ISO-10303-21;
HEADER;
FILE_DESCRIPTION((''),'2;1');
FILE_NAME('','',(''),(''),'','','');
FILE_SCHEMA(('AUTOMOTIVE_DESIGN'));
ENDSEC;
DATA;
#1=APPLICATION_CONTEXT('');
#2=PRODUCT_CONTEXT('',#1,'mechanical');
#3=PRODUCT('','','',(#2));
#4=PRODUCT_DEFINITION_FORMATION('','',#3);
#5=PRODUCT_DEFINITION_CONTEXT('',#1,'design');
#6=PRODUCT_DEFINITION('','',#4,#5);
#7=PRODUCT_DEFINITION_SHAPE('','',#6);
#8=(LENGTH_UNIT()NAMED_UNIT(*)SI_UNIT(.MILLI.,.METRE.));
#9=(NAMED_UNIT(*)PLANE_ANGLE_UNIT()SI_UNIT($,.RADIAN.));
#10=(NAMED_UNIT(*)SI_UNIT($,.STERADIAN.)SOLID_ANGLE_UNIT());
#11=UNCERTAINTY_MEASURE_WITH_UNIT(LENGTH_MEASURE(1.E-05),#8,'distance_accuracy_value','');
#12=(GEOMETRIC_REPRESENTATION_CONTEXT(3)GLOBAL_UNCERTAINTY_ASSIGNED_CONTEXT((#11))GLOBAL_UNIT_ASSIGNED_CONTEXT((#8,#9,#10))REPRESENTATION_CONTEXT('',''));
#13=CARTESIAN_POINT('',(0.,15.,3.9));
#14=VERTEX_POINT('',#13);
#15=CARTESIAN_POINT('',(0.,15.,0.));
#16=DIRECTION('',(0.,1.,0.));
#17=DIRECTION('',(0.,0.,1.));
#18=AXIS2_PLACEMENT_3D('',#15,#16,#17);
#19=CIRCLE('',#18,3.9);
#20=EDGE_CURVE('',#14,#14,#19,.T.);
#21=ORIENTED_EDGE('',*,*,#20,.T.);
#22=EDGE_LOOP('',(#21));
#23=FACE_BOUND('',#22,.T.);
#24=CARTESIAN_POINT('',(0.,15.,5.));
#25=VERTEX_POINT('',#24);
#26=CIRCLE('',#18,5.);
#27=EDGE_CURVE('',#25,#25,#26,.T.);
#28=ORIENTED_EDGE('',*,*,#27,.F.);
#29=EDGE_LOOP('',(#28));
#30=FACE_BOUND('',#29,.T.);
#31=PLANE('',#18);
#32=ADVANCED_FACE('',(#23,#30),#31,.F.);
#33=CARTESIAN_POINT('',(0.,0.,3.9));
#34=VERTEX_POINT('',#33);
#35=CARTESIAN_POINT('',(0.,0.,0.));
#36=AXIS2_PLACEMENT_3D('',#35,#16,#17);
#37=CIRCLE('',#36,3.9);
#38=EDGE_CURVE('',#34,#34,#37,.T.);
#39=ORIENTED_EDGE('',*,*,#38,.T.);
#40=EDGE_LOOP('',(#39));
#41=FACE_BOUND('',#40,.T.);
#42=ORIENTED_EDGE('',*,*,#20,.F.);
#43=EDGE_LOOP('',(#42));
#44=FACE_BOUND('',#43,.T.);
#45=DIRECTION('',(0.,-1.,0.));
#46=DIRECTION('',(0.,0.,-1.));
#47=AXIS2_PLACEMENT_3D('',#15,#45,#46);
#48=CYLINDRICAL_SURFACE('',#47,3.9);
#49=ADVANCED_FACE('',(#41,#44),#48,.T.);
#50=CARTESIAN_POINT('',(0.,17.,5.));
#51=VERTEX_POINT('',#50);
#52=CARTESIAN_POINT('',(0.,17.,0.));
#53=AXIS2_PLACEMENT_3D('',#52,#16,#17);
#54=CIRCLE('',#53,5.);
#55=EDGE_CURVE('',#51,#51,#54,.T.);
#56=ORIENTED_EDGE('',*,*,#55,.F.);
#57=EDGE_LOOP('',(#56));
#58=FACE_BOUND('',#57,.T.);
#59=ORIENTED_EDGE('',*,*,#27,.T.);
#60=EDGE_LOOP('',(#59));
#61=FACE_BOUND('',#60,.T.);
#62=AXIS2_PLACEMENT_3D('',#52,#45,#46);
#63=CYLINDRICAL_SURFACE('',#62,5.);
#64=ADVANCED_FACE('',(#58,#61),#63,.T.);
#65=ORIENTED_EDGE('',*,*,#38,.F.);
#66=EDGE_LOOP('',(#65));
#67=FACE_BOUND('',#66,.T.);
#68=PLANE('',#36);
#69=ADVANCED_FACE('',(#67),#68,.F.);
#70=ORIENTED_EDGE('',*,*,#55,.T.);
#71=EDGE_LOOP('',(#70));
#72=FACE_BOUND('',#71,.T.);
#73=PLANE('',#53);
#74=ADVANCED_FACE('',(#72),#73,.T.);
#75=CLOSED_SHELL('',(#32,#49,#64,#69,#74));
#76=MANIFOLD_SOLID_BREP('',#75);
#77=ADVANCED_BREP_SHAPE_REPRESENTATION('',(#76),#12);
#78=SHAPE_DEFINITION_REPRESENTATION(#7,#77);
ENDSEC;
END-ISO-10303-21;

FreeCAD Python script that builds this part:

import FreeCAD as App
import Part
import Sketcher

V = App.Vector

doc = App.newDocument("Part")
body = doc.addObject("PartDesign::Body", "Body")

# Sketch on XZ plane
sketch1 = body.newObject("Sketcher::SketchObject", "Sketch")
sketch1.AttachmentSupport = (doc.getObject("XZ_Plane"), [""])
sketch1.MapMode = "FlatFace"
sketch1.addGeometry(Part.Circle(V(0, 0, 0), V(0, 0, 1), 3.9), False)
sketch1.addConstraint([
    Sketcher.Constraint("Coincident", 0, 3, -1, 1),
    Sketcher.Constraint("Diameter", 0, 7.8),
])
pad1 = body.newObject("PartDesign::Pad", "Pad")
pad1.Profile = sketch1
pad1.Length = 15
pad1.Reversed = True

# Sketch on XZ plane
sketch2 = body.newObject("Sketcher::SketchObject", "Sketch001")
sketch2.AttachmentSupport = (doc.getObject("XZ_Plane"), [""])
sketch2.MapMode = "FlatFace"
sketch2.AttachmentOffset = App.Placement(V(0, 0, -15), App.Rotation())
sketch2.addGeometry(Part.Circle(V(0, 0, 0), V(0, 0, 1), 5), False)
sketch2.addConstraint([
    Sketcher.Constraint("Coincident", 0, 3, -1, 1),
    Sketcher.Constraint("Diameter", 0, 10.0),
])
pad2 = body.newObject("PartDesign::Pad", "Pad001")
pad2.Profile = sketch2
pad2.Length = 2
pad2.Reversed = True

doc.recompute()
